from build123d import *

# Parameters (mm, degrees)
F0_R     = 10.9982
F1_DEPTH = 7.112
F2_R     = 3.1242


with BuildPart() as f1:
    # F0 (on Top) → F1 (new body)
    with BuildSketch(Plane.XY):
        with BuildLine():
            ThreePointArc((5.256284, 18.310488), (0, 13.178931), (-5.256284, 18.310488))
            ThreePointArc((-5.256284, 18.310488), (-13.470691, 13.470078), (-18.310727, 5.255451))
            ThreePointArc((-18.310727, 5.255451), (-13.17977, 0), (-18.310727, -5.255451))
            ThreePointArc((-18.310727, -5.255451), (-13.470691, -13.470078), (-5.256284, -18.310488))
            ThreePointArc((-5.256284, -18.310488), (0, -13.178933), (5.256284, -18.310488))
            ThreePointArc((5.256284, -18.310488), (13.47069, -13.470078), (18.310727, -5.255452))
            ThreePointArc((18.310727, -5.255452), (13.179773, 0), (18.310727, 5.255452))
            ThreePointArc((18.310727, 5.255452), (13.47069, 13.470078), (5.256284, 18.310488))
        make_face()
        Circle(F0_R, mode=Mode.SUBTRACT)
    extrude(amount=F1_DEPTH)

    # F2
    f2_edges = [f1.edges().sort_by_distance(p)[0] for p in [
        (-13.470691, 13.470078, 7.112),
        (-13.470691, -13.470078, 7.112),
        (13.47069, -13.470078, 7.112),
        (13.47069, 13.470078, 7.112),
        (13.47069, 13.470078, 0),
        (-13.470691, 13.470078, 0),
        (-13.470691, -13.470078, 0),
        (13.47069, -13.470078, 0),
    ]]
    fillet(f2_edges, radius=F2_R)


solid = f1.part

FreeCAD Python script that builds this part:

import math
import FreeCAD as App
import Part
import Sketcher
Q = App.Units.Quantity


def edges_at(feature, points):
    """Names of the edges that pass closest to the given points."""
    edges = feature.Shape.Edges
    near = lambda p: min(range(len(edges)), key=lambda i: edges[i].distToShape(Part.Vertex(*p))[0])
    return sorted({f"Edge{near(p) + 1}" for p in points})

doc = App.newDocument("Part")
params = doc.addObject("Spreadsheet::Sheet", "Params")
for row, (alias, value) in enumerate([
    ("sketch1_radius", "0.75 in"),
    ("sketch1_diameter", "0.866 in"),
    ("sketch1_radius2", "0.207 in"),
    ("pad1_length", "0.28 in"),
    ("fillet_radius", "0.123 in"),
], start=1):
    params.set(f"A{row}", alias)
    params.set(f"B{row}", "=" + value)
    params.setAlias(f"B{row}", alias)

body = doc.addObject("PartDesign::Body", "Body")

# Sketch on XY plane
sketch1 = body.newObject("Sketcher::SketchObject", "Sketch")
sketch1.AttachmentSupport = (doc.getObject("XY_Plane"), [""])
sketch1.MapMode = "FlatFace"
sketch1.addGeometry([
    Part.ArcOfCircle(Part.Circle(App.Vector(0, 18, 0), App.Vector(0, 0, 1), 5), math.radians(-179), math.radians(-1)),  # 0
    Part.ArcOfCircle(Part.Circle(App.Vector(0, 0, 0), App.Vector(0, 0, 1), 19), math.radians(106), math.radians(164)),  # 1
    Part.ArcOfCircle(Part.Circle(App.Vector(-18, 0, 0), App.Vector(0, 0, 1), 5), math.radians(-89), math.radians(89)),  # 2
    Part.ArcOfCircle(Part.Circle(App.Vector(0, 0, 0), App.Vector(0, 0, 1), 19), math.radians(-164), math.radians(-106)),  # 3
    Part.ArcOfCircle(Part.Circle(App.Vector(0, -18, 0), App.Vector(0, 0, 1), 5), math.radians(1), math.radians(179)),  # 4
    Part.ArcOfCircle(Part.Circle(App.Vector(0, 0, 0), App.Vector(0, 0, 1), 19), math.radians(-74), math.radians(-16)),  # 5
    Part.ArcOfCircle(Part.Circle(App.Vector(18, 0, 0), App.Vector(0, 0, 1), 5), math.radians(91), math.radians(269)),  # 6
    Part.ArcOfCircle(Part.Circle(App.Vector(0, 0, 0), App.Vector(0, 0, 1), 19), math.radians(16), math.radians(74)),  # 7
    Part.Circle(App.Vector(0, 0, 0), App.Vector(0, 0, 1), 11),  # 8
], False)
sketch1.addConstraint([
    Sketcher.Constraint("Coincident", 0, 1, 1, 1),
    Sketcher.Constraint("Coincident", 1, 2, 2, 2),
    Sketcher.Constraint("Coincident", 2, 1, 3, 1),
    Sketcher.Constraint("Coincident", 3, 2, 4, 2),
    Sketcher.Constraint("Coincident", 4, 1, 5, 1),
    Sketcher.Constraint("Coincident", 5, 2, 6, 2),
    Sketcher.Constraint("Coincident", 6, 1, 7, 1),
    Sketcher.Constraint("Coincident", 7, 2, 0, 2),
    Sketcher.Constraint("Coincident", 1, 3, -1, 1),
    Sketcher.Constraint("Coincident", 3, 3, -1, 1),
    Sketcher.Constraint("Coincident", 5, 3, -1, 1),
    Sketcher.Constraint("Coincident", 7, 3, -1, 1),
    Sketcher.Constraint("Coincident", 8, 3, -1, 1),
    Sketcher.Constraint("Equal", 1, 3),
    Sketcher.Constraint("Equal", 0, 4),
    Sketcher.Constraint("Equal", 2, 6),
    Sketcher.Constraint("Equal", 5, 7),
    Sketcher.Constraint("Symmetric", 0, 3, 4, 3, -1, 1),
    Sketcher.Constraint("Symmetric", 2, 3, 6, 3, -1, 1),
    Sketcher.Constraint("Symmetric", 3, 2, 4, 1, -2),
    Sketcher.Constraint("PointOnObject", 2, 3, -1),
    Sketcher.Constraint("Radius", 5, Q("0.75 in")),
    Sketcher.Constraint("Diameter", 8, Q("0.866 in")),
    Sketcher.Constraint("Radius", 0, Q("0.207 in")),
    Sketcher.Constraint("Radius", 2, 5.256961),
    Sketcher.Constraint("DistanceY", -1, 1, 0, 3, 18.436731),
    Sketcher.Constraint("DistanceX", 2, 3, -1, 1, 18.436731),
])
sketch1.setExpression("Constraints[21]", "Params.sketch1_radius")
sketch1.setExpression("Constraints[22]", "Params.sketch1_diameter")
sketch1.setExpression("Constraints[23]", "Params.sketch1_radius2")
pad1 = body.newObject("PartDesign::Pad", "Pad")
pad1.Profile = sketch1
pad1.setExpression("Length", "Params.pad1_length")
doc.recompute()

fillet = body.newObject("PartDesign::Fillet", "Fillet")
fillet.Base = (pad1, edges_at(pad1, [
    (-13.471, 13.47, 7.112),
    (-13.471, -13.47, 7.112),
    (13.471, -13.47, 7.112),
    (13.471, 13.47, 7.112),
    (13.471, 13.47, 0),
    (-13.471, 13.47, 0),
    (-13.471, -13.47, 0),
    (13.471, -13.47, 0),
]))
fillet.setExpression("Radius", "Params.fillet_radius")

doc.recompute()
